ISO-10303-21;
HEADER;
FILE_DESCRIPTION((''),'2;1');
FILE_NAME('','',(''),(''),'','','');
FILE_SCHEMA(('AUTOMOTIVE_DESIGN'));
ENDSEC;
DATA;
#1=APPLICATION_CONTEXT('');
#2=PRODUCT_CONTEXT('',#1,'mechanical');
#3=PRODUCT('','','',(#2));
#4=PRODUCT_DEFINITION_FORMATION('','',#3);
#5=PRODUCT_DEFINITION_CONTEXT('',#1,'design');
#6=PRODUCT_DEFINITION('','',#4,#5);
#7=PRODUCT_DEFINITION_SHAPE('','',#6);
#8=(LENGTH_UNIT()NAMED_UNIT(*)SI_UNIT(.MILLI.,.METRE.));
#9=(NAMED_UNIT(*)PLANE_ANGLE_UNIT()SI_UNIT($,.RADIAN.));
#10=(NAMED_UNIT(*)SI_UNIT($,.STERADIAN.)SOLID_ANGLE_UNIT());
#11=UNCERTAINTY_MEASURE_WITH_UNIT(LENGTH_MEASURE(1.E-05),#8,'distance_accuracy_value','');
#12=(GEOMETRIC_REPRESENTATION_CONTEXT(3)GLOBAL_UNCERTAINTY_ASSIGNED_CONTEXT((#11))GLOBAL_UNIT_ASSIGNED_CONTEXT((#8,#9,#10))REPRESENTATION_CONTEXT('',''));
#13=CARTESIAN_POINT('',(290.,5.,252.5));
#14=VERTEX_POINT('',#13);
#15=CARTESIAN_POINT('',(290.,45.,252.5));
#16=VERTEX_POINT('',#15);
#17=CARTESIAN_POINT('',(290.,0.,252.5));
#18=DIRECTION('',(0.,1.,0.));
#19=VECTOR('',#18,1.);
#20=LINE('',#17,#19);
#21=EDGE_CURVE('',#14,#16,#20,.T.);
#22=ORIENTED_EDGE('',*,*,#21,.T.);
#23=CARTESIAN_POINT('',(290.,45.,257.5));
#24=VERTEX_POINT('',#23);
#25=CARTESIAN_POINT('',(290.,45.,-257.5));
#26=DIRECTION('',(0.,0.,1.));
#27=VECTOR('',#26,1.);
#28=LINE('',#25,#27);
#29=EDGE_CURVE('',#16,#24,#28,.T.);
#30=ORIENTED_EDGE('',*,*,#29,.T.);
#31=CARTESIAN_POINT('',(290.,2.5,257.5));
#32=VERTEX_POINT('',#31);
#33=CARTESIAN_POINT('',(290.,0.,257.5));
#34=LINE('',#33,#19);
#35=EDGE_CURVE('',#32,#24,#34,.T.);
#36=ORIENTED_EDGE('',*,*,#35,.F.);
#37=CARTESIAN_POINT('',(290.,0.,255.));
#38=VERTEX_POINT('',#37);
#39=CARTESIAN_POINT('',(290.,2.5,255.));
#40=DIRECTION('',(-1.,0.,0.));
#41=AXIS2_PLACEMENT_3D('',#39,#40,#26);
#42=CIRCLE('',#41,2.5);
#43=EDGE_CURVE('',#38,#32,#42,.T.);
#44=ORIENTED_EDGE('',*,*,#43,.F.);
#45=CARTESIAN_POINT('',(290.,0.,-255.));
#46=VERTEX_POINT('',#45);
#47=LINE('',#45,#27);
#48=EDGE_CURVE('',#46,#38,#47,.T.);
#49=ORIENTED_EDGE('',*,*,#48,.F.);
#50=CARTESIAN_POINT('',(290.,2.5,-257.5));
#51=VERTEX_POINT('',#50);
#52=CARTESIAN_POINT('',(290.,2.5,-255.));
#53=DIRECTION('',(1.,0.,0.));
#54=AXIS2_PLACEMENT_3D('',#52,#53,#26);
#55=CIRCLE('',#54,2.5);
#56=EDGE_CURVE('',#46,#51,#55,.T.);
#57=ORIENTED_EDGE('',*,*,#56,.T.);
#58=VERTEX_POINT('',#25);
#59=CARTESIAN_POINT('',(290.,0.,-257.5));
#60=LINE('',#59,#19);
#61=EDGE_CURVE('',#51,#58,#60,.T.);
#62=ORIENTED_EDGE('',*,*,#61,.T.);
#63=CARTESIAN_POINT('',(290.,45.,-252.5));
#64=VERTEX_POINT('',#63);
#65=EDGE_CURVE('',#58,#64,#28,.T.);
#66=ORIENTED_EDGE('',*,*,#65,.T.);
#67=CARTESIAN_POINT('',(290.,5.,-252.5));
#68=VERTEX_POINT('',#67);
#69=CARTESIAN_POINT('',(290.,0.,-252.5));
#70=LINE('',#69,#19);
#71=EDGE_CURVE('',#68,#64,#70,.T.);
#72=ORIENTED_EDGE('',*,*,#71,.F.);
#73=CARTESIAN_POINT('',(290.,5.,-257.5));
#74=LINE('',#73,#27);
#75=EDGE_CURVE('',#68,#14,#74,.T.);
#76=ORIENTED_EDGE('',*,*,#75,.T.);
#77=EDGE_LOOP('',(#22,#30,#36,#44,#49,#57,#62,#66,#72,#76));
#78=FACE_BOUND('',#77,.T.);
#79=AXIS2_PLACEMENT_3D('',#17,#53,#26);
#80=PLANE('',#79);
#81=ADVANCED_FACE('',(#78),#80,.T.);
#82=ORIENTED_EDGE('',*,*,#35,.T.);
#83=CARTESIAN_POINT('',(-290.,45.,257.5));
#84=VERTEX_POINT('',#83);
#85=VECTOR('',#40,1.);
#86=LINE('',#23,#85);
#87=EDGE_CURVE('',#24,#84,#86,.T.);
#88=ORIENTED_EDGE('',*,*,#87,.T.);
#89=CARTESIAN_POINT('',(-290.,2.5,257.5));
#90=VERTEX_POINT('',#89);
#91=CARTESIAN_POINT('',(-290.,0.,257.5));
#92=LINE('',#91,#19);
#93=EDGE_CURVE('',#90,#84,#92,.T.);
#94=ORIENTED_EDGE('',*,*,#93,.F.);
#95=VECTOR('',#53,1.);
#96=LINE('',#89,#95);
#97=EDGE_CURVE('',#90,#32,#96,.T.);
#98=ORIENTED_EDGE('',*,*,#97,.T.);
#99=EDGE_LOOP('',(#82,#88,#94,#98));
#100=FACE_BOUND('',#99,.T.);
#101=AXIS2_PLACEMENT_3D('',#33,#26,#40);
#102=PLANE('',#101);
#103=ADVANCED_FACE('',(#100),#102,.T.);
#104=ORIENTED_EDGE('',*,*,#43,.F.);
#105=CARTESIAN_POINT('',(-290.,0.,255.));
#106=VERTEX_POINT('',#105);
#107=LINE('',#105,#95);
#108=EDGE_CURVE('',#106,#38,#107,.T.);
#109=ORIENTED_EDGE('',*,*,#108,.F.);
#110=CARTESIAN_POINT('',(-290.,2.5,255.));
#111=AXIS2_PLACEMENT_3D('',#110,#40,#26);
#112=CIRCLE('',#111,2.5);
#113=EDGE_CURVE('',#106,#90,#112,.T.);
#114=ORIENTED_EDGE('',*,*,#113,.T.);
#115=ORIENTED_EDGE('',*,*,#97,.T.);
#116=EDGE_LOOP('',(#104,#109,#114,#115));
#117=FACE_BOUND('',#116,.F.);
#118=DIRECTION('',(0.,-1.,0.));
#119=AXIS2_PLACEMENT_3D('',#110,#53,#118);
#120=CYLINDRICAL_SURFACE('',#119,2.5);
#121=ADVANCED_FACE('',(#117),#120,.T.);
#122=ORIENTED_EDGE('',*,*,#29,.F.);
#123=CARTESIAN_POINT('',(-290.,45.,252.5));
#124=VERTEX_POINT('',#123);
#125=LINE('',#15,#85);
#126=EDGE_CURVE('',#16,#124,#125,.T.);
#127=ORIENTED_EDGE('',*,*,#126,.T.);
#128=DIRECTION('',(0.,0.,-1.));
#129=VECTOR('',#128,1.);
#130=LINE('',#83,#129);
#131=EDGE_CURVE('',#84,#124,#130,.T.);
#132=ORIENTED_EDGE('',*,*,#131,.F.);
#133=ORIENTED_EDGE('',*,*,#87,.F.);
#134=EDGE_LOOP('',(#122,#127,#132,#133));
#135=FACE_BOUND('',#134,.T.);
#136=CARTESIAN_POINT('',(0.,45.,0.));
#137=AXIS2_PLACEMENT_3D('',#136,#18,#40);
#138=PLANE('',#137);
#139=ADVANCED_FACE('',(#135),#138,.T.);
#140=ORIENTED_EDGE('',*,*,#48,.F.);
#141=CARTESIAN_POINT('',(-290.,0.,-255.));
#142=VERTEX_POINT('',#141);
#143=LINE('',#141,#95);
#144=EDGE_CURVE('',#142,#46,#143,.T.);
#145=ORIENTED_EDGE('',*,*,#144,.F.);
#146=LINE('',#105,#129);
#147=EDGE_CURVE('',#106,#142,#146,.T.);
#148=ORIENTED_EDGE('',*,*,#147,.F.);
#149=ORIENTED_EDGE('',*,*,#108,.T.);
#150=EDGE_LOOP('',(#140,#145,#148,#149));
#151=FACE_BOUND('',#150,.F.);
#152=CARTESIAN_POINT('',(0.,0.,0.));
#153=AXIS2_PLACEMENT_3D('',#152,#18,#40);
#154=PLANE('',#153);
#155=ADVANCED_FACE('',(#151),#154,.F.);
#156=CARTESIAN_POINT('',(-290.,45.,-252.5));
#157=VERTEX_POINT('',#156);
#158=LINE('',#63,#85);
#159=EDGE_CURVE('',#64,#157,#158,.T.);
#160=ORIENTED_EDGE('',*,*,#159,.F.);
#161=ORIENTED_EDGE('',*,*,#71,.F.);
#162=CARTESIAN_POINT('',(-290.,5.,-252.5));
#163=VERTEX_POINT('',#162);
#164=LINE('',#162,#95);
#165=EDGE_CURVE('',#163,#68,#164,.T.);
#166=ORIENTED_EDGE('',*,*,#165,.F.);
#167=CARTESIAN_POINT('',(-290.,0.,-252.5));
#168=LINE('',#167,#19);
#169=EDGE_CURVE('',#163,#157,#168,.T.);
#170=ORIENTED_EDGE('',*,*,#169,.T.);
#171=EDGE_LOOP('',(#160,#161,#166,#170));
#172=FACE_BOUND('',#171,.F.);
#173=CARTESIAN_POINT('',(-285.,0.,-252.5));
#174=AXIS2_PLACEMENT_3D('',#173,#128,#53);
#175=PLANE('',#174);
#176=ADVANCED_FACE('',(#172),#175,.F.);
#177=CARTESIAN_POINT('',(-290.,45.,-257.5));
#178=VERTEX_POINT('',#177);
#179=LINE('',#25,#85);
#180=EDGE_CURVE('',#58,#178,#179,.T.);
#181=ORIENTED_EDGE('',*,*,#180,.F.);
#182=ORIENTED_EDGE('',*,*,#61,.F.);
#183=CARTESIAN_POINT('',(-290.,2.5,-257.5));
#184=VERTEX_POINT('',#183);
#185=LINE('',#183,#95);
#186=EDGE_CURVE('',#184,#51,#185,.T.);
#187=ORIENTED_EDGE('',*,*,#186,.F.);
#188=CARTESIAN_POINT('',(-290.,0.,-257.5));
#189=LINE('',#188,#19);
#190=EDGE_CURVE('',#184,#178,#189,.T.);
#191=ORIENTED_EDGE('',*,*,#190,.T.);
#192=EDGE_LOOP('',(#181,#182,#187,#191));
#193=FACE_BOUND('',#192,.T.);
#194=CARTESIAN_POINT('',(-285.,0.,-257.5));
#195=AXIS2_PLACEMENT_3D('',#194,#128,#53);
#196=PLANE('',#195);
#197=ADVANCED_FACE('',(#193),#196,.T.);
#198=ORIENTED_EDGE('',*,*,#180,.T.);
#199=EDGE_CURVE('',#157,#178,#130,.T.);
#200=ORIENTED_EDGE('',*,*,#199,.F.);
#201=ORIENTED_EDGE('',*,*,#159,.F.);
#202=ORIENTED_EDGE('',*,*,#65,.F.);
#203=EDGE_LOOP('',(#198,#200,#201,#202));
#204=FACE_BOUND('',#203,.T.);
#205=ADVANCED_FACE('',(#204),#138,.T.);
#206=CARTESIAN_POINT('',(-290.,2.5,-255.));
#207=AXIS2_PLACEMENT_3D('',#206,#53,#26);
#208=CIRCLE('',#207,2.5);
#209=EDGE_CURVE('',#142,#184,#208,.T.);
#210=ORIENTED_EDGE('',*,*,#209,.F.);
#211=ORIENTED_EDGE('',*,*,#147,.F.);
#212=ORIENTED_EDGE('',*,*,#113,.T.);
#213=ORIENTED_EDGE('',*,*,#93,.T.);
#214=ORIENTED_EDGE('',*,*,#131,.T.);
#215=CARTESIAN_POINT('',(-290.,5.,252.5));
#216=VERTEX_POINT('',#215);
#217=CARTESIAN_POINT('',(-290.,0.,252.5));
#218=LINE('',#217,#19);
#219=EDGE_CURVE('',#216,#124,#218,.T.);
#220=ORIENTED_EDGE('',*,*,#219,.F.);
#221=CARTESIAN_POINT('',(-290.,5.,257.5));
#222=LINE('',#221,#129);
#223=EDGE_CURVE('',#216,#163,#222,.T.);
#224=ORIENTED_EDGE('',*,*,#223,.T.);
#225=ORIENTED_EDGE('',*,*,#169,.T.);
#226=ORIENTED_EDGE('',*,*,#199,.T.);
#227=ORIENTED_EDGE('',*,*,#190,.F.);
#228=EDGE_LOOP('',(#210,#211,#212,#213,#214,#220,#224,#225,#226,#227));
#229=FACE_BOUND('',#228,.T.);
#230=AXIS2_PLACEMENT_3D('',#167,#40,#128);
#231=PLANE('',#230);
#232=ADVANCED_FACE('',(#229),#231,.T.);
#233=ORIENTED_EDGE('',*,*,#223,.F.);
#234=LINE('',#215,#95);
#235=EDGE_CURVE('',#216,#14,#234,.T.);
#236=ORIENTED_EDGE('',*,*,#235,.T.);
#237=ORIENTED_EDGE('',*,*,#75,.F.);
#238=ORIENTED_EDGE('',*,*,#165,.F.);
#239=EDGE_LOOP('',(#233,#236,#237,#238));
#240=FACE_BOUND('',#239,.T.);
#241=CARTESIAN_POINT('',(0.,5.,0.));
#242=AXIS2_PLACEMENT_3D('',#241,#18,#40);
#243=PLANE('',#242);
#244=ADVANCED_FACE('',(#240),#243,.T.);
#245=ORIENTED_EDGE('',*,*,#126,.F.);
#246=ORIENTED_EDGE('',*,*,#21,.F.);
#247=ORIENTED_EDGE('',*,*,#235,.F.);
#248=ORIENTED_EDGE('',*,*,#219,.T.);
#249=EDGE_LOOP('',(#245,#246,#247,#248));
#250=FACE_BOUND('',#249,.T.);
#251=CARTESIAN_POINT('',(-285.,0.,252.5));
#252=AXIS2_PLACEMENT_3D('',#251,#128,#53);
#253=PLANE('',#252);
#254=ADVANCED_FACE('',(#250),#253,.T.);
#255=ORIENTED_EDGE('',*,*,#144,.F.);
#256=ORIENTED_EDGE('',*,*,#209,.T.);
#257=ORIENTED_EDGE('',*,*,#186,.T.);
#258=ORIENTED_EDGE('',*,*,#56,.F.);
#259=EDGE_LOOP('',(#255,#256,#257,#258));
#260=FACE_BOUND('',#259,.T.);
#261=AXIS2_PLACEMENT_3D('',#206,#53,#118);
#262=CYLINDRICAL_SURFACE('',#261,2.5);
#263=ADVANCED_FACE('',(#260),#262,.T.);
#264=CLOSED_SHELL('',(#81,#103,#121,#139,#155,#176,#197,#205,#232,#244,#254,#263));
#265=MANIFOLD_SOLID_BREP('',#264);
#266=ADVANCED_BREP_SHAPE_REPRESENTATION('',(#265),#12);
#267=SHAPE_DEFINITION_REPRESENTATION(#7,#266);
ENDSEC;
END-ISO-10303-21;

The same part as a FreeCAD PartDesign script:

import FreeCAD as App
import Part
import Sketcher


def edges_at(feature, points):
    """Names of the edges that pass closest to the given points."""
    edges = feature.Shape.Edges
    near = lambda p: min(range(len(edges)), key=lambda i: edges[i].distToShape(Part.Vertex(*p))[0])
    return sorted({f"Edge{near(p) + 1}" for p in points})

doc = App.newDocument("Part")
body = doc.addObject("PartDesign::Body", "Body")
body.AllowCompound = True

# Sketch on XZ plane
sketch1 = body.newObject("Sketcher::SketchObject", "Sketch")
sketch1.AttachmentSupport = (doc.getObject("XZ_Plane"), [""])
sketch1.MapMode = "FlatFace"
sketch1.addGeometry(Part.LineSegment(App.Vector(290, 258, 0), App.Vector(290, 252, 0)), False)
sketch1.addGeometry(Part.LineSegment(App.Vector(290, 252, 0), App.Vector(-290, 252, 0)), False)
sketch1.addGeometry(Part.LineSegment(App.Vector(-290, 252, 0), App.Vector(-290, 258, 0)), False)
sketch1.addGeometry(Part.LineSegment(App.Vector(-290, 258, 0), App.Vector(290, 258, 0)), False)
sketch1.addGeometry(Part.LineSegment(App.Vector(290, -252, 0), App.Vector(290, -258, 0)), False)
sketch1.addGeometry(Part.LineSegment(App.Vector(290, -258, 0), App.Vector(-290, -258, 0)), False)
sketch1.addGeometry(Part.LineSegment(App.Vector(-290, -258, 0), App.Vector(-290, -252, 0)), False)
sketch1.addGeometry(Part.LineSegment(App.Vector(-290, -252, 0), App.Vector(290, -252, 0)), False)
sketch1.addConstraint(Sketcher.Constraint("Coincident", 0, 2, 1, 1))
sketch1.addConstraint(Sketcher.Constraint("Coincident", 1, 2, 2, 1))
sketch1.addConstraint(Sketcher.Constraint("Coincident", 2, 2, 3, 1))
sketch1.addConstraint(Sketcher.Constraint("Coincident", 3, 2, 0, 1))
sketch1.addConstraint(Sketcher.Constraint("Coincident", 4, 2, 5, 1))
sketch1.addConstraint(Sketcher.Constraint("Coincident", 5, 2, 6, 1))
sketch1.addConstraint(Sketcher.Constraint("Coincident", 6, 2, 7, 1))
sketch1.addConstraint(Sketcher.Constraint("Coincident", 7, 2, 4, 1))
sketch1.addConstraint(Sketcher.Constraint("Vertical", 0))
sketch1.addConstraint(Sketcher.Constraint("Horizontal", 1))
sketch1.addConstraint(Sketcher.Constraint("Vertical", 2))
sketch1.addConstraint(Sketcher.Constraint("Horizontal", 3))
sketch1.addConstraint(Sketcher.Constraint("Vertical", 4))
sketch1.addConstraint(Sketcher.Constraint("Horizontal", 5))
sketch1.addConstraint(Sketcher.Constraint("Vertical", 6))
sketch1.addConstraint(Sketcher.Constraint("Horizontal", 7))
sketch1.addConstraint(Sketcher.Constraint("Symmetric", 2, 2, 4, 2, -1, 1))
sketch1.addConstraint(Sketcher.Constraint("Symmetric", 0, 2, 6, 2, -1, 1))
sketch1.addConstraint(Sketcher.Constraint("Vertical", 3, 2, 4, 2))
sketch1.addConstraint(Sketcher.Constraint("DistanceX", 1, 2, 1, 1, 580.0))
sketch1.addConstraint(Sketcher.Constraint("DistanceY", 0, 2, 0, 1, 5.0))
sketch1.addConstraint(Sketcher.Constraint("DistanceY", 4, 2, 3, 2, 515.0))
pad1 = body.newObject("PartDesign::Pad", "Pad")
pad1.Profile = sketch1
pad1.Length = 45
pad1.Reversed = True

# Sketch on XZ plane
sketch2 = body.newObject("Sketcher::SketchObject", "Sketch001")
sketch2.AttachmentSupport = (doc.getObject("XZ_Plane"), [""])
sketch2.MapMode = "FlatFace"
sketch2.addGeometry(Part.LineSegment(App.Vector(-285, 258, 0), App.Vector(290, 258, 0)), False)
sketch2.addGeometry(Part.LineSegment(App.Vector(290, 258, 0), App.Vector(290, -258, 0)), False)
sketch2.addGeometry(Part.LineSegment(App.Vector(290, -258, 0), App.Vector(-285, -258, 0)), False)
sketch2.addGeometry(Part.LineSegment(App.Vector(-285, -258, 0), App.Vector(-285, 258, 0)), False)
sketch2.addConstraint(Sketcher.Constraint("Coincident", 0, 2, 1, 1))
sketch2.addConstraint(Sketcher.Constraint("Coincident", 1, 2, 2, 1))
sketch2.addConstraint(Sketcher.Constraint("Coincident", 2, 2, 3, 1))
sketch2.addConstraint(Sketcher.Constraint("Coincident", 3, 2, 0, 1))
sketch2.addConstraint(Sketcher.Constraint("Horizontal", 0))
sketch2.addConstraint(Sketcher.Constraint("Vertical", 1))
sketch2.addConstraint(Sketcher.Constraint("Horizontal", 2))
sketch2.addConstraint(Sketcher.Constraint("Vertical", 3))
sketch2.addConstraint(Sketcher.Constraint("DistanceY", 1, 2, 1, 1, 515.0))
sketch2.addConstraint(Sketcher.Constraint("DistanceX", 0, 1, 0, 2, 575.0))
sketch2.addConstraint(Sketcher.Constraint("DistanceX", -1, 1, 0, 2, 290.0))
sketch2.addConstraint(Sketcher.Constraint("DistanceY", -1, 1, 0, 2, 257.5))
pad2 = body.newObject("PartDesign::Pad", "Pad001")
pad2.Profile = sketch2
pad2.Length = 5
pad2.Reversed = True
doc.recompute()

fillet = body.newObject("PartDesign::Fillet", "Fillet")
fillet.Base = (pad2, edges_at(pad2, [(0, 0, -257.5)]))
fillet.Radius = 2.5
doc.recompute()

fillet2 = body.newObject("PartDesign::Fillet", "Fillet001")
fillet2.Base = (fillet, edges_at(fillet, [(0, 0, 257.5)]))
fillet2.Radius = 2.5

# Sketch on XZ plane
sketch3 = body.newObject("Sketcher::SketchObject", "Sketch002")
sketch3.AttachmentSupport = (doc.getObject("XZ_Plane"), [""])
sketch3.MapMode = "FlatFace"
sketch3.addGeometry(Part.LineSegment(App.Vector(290, 252, 0), App.Vector(290, -252, 0)), False)
sketch3.addGeometry(Part.LineSegment(App.Vector(290, -252, 0), App.Vector(-290, -252, 0)), False)
sketch3.addGeometry(Part.LineSegment(App.Vector(-290, -252, 0), App.Vector(-290, 252, 0)), False)
sketch3.addGeometry(Part.LineSegment(App.Vector(-290, 252, 0), App.Vector(290, 252, 0)), False)
sketch3.addConstraint(Sketcher.Constraint("Coincident", 0, 2, 1, 1))
sketch3.addConstraint(Sketcher.Constraint("Coincident", 1, 2, 2, 1))
sketch3.addConstraint(Sketcher.Constraint("Coincident", 2, 2, 3, 1))
sketch3.addConstraint(Sketcher.Constraint("Coincident", 3, 2, 0, 1))
sketch3.addConstraint(Sketcher.Constraint("Vertical", 0))
sketch3.addConstraint(Sketcher.Constraint("Horizontal", 1))
sketch3.addConstraint(Sketcher.Constraint("Vertical", 2))
sketch3.addConstraint(Sketcher.Constraint("Horizontal", 3))
sketch3.addConstraint(Sketcher.Constraint("Symmetric", 0, 2, 2, 2, -1, 1))
sketch3.addConstraint(Sketcher.Constraint("DistanceX", 1, 2, 1, 1, 580.0))
sketch3.addConstraint(Sketcher.Constraint("DistanceY", 0, 2, 0, 1, 505.0))
pad3 = body.newObject("PartDesign::Pad", "Pad002")
pad3.Profile = sketch3
pad3.Length = 5
pad3.Reversed = True

doc.recompute()
